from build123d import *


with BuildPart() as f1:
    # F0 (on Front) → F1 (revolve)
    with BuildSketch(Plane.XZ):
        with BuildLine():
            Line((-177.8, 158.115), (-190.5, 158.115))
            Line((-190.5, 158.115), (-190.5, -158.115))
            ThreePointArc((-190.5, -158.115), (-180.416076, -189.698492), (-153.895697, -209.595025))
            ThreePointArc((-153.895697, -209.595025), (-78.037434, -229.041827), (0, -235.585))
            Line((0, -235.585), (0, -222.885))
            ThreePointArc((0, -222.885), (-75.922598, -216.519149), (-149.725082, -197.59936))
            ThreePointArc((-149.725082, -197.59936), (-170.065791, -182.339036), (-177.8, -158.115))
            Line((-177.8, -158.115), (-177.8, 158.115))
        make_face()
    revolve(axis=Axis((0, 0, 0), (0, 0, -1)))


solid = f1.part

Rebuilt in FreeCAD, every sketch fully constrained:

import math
import FreeCAD as App
import Part
import Sketcher
Q = App.Units.Quantity

doc = App.newDocument("Part")
body = doc.addObject("PartDesign::Body", "Body")

sketch1 = body.newObject("Sketcher::SketchObject", "Sketch")
sketch1.AttachmentSupport = (doc.getObject("XZ_Plane"), [""])
sketch1.MapMode = "FlatFace"
sketch1.addGeometry(Part.LineSegment(App.Vector(-178, 158, 0), App.Vector(-190, 158, 0)), False)
sketch1.addGeometry(Part.LineSegment(App.Vector(-190, 158, 0), App.Vector(-190, -158, 0)), False)
sketch1.addGeometry(Part.ArcOfCircle(Part.Circle(App.Vector(-136, -158, 0), App.Vector(0, 0, 1), 55), math.radians(-180), math.radians(-109)), False)
sketch1.addGeometry(Part.ArcOfCircle(Part.Circle(App.Vector(0, 233, 0), App.Vector(0, 0, 1), 469), math.radians(-109.17), math.radians(-90)), False)
sketch1.addGeometry(Part.LineSegment(App.Vector(0, -236, 0), App.Vector(0, -223, 0)), False)
sketch1.addGeometry(Part.ArcOfCircle(Part.Circle(App.Vector(0, 233, 0), App.Vector(0, 0, 1), 456), math.radians(-109.17), math.radians(-90)), False)
sketch1.addGeometry(Part.ArcOfCircle(Part.Circle(App.Vector(-136, -158, 0), App.Vector(0, 0, 1), 42), math.radians(180), math.radians(251)), False)
sketch1.addGeometry(Part.LineSegment(App.Vector(-178, -158, 0), App.Vector(-178, 158, 0)), False)
sketch1.addConstraint(Sketcher.Constraint("Coincident", 0, 2, 1, 1))
sketch1.addConstraint(Sketcher.Constraint("Tangent", 1, 2, 2, 1))
sketch1.addConstraint(Sketcher.Constraint("Tangent", 2, 2, 3, 1))
sketch1.addConstraint(Sketcher.Constraint("Coincident", 3, 2, 4, 1))
sketch1.addConstraint(Sketcher.Constraint("Coincident", 4, 2, 5, 2))
sketch1.addConstraint(Sketcher.Constraint("Tangent", 5, 1, 6, 2))
sketch1.addConstraint(Sketcher.Constraint("Tangent", 6, 1, 7, 1))
sketch1.addConstraint(Sketcher.Constraint("Coincident", 7, 2, 0, 1))
sketch1.addConstraint(Sketcher.Constraint("Horizontal", 0))
sketch1.addConstraint(Sketcher.Constraint("Vertical", 1))
sketch1.addConstraint(Sketcher.Constraint("Vertical", 4))
sketch1.addConstraint(Sketcher.Constraint("Vertical", 7))
sketch1.addConstraint(Sketcher.Constraint("Coincident", 6, 3, 2, 3))
sketch1.addConstraint(Sketcher.Constraint("PointOnObject", 5, 3, -2))
sketch1.addConstraint(Sketcher.Constraint("PointOnObject", 4, 2, -2))
sketch1.addConstraint(Sketcher.Constraint("Equal", 0, 4))
sketch1.addConstraint(Sketcher.Constraint("Radius", 5, Q("17.95 in")))
sketch1.addConstraint(Sketcher.Constraint("DistanceX", 0, 2, 0, 1, Q("0.5 in")))
sketch1.addConstraint(Sketcher.Constraint("DistanceX", 6, 1, -1, 1, Q("7 in")))
sketch1.addConstraint(Sketcher.Constraint("DistanceX", 7, 2, 3, 3, Q("7.0000001 in")))
sketch1.addConstraint(Sketcher.Constraint("DistanceY", 1, 2, 1, 1, Q("12.45 in")))
sketch1.addConstraint(Sketcher.Constraint("DistanceY", 2, 3, 5, 3, Q("15.3999999 in")))
sketch1.addConstraint(Sketcher.Constraint("DistanceY", 2, 3, -1, 1, Q("6.225 in")))
revolution = body.newObject("PartDesign::Revolution", "Revolution")
revolution.Profile = sketch1
revolution.ReferenceAxis = (sketch1, ["V_Axis"])
revolution.Angle = 360

doc.recompute()
